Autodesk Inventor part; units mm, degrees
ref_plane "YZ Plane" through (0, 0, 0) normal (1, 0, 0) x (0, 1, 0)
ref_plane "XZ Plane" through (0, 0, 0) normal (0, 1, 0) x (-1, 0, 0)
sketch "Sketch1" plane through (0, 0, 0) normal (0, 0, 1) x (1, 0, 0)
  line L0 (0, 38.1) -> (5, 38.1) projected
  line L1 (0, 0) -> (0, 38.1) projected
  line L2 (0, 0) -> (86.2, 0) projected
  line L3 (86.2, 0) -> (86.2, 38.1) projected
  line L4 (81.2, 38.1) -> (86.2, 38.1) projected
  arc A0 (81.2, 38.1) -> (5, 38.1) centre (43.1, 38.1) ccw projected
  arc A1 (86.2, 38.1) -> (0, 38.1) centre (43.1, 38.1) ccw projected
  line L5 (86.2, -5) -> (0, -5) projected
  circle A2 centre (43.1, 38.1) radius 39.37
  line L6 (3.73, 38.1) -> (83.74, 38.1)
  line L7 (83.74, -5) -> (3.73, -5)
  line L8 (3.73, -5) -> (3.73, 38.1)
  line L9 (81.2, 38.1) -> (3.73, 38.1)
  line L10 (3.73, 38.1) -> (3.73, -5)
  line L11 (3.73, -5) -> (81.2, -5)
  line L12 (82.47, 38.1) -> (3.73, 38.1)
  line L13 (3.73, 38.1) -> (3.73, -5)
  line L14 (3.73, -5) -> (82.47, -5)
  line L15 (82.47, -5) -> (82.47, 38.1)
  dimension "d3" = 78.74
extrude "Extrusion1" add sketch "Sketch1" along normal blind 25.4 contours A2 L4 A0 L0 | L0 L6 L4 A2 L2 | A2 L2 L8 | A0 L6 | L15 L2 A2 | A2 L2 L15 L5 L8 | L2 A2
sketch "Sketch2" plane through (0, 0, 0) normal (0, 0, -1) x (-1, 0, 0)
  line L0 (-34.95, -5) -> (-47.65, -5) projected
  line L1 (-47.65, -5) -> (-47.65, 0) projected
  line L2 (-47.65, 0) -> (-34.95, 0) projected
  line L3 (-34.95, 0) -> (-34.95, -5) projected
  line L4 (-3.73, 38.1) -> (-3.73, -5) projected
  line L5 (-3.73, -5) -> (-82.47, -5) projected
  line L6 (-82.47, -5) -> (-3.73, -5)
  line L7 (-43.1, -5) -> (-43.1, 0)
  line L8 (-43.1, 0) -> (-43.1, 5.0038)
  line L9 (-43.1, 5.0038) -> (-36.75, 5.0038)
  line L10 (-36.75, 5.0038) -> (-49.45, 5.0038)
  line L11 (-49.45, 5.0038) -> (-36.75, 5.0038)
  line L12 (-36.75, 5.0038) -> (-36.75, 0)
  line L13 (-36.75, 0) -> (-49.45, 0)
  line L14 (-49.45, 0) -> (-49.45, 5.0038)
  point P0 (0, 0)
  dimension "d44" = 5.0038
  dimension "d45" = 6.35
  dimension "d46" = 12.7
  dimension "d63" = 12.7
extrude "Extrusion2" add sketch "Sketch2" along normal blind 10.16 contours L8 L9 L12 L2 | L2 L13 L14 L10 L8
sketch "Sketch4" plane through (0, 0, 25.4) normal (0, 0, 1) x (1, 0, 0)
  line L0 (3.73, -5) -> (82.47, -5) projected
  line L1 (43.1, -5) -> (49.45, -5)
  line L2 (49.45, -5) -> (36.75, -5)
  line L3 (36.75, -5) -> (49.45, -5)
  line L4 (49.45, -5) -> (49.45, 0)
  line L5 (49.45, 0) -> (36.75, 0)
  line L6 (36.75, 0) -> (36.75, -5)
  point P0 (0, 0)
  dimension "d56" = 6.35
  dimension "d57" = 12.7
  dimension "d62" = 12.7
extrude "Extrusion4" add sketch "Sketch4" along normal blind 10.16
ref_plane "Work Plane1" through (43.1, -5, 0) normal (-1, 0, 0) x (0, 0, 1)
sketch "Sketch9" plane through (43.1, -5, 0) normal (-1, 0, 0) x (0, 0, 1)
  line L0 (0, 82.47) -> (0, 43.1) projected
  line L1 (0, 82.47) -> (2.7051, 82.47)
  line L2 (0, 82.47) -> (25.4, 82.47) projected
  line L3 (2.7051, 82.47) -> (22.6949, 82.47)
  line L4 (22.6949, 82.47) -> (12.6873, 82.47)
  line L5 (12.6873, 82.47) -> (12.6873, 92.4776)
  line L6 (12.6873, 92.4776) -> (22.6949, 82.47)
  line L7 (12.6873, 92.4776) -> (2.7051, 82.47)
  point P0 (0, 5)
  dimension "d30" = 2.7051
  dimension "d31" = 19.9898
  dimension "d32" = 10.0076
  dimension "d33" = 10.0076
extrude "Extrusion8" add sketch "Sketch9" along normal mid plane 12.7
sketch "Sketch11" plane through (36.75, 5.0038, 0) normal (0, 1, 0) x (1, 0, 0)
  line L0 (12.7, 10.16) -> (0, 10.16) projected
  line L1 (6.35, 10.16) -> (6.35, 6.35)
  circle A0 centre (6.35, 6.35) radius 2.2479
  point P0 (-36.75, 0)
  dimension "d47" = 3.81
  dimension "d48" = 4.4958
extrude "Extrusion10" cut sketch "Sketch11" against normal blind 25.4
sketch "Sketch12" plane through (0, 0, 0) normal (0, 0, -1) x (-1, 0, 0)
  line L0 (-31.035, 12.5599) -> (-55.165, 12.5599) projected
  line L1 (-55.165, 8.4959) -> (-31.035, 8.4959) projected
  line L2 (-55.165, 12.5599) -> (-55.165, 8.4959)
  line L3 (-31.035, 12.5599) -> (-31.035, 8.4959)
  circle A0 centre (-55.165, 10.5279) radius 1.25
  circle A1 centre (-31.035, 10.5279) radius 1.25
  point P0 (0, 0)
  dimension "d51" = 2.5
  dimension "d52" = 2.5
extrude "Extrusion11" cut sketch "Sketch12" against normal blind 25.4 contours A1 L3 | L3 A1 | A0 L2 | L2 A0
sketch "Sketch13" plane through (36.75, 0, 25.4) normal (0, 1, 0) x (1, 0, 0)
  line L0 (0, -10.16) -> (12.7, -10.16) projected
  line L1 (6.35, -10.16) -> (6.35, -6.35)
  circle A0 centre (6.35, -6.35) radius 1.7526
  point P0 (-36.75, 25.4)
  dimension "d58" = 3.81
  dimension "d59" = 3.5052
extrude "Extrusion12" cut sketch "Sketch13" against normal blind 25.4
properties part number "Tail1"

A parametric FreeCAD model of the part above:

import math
import FreeCAD as App
import Part
import Sketcher
from FreeCAD import Vector
Q = App.Units.Quantity

doc = App.newDocument("Part")
body = doc.addObject("PartDesign::Body", "Body")
body.AllowCompound = True

# Sketch on XY plane
sketch1 = body.newObject("Sketcher::SketchObject", "Sketch")
sketch1.AttachmentSupport = (doc.getObject("XY_Plane"), [""])
sketch1.MapMode = "FlatFace"
sketch1.addGeometry([
    Part.ArcOfCircle(Part.Circle(Vector(43, 38, 0), Vector(0, 0, 1), 39), math.radians(0), math.radians(180)),
    Part.LineSegment(Vector(4, 38, 0), Vector(4, -5, 0)),
    Part.LineSegment(Vector(4, -5, 0), Vector(82, -5, 0)),
    Part.LineSegment(Vector(82, -5, 0), Vector(82, 38, 0)),
], False)
sketch1.addConstraint([
    Sketcher.Constraint("Tangent", 0, 2, 1, 1),
    Sketcher.Constraint("Coincident", 1, 2, 2, 1),
    Sketcher.Constraint("Coincident", 2, 2, 3, 1),
    Sketcher.Constraint("Tangent", 3, 2, 0, 1),
    Sketcher.Constraint("Vertical", 1),
    Sketcher.Constraint("Horizontal", 2),
    Sketcher.Constraint("Vertical", 3),
    Sketcher.Constraint("Radius", 0, Q("1.55 in")),
    Sketcher.Constraint("DistanceY", -1, 1, 0, 3, Q("1.5 in")),
    Sketcher.Constraint("DistanceY", 1, 2, 1, 1, Q("43.1 mm")),
    Sketcher.Constraint("DistanceX", -1, 1, 0, 3, Q("43.1 mm")),
])
pad1 = body.newObject("PartDesign::Pad", "Pad")
pad1.Profile = sketch1
pad1.Length = Q("1 in")

# Sketch on XY plane
sketch2 = body.newObject("Sketcher::SketchObject", "Sketch001")
sketch2.AttachmentSupport = (doc.getObject("XY_Plane"), [""])
sketch2.MapMode = "FlatFace"
sketch2.addGeometry([
    Part.LineSegment(Vector(37, 5, 0), Vector(49, 5, 0)),
    Part.LineSegment(Vector(49, 5, 0), Vector(49, 0, 0)),
    Part.LineSegment(Vector(49, 0, 0), Vector(37, 0, 0)),
    Part.LineSegment(Vector(37, 0, 0), Vector(37, 5, 0)),
], False)
sketch2.addConstraint([
    Sketcher.Constraint("Coincident", 0, 2, 1, 1),
    Sketcher.Constraint("Coincident", 1, 2, 2, 1),
    Sketcher.Constraint("Coincident", 2, 2, 3, 1),
    Sketcher.Constraint("Coincident", 3, 2, 0, 1),
    Sketcher.Constraint("Horizontal", 0),
    Sketcher.Constraint("Vertical", 1),
    Sketcher.Constraint("Horizontal", 2),
    Sketcher.Constraint("Vertical", 3),
    Sketcher.Constraint("PointOnObject", 1, 2, -1),
    Sketcher.Constraint("DistanceX", 0, 1, 0, 2, Q("0.5 in")),
    Sketcher.Constraint("DistanceY", 1, 2, 1, 1, Q("0.197 in")),
    Sketcher.Constraint("DistanceX", -1, 1, 0, 2, Q("49.45 mm")),
])
pad2 = body.newObject("PartDesign::Pad", "Pad001")
pad2.Profile = sketch2
pad2.Length = Q("0.4 in")
pad2.Reversed = True

# Sketch on XY plane
sketch3 = body.newObject("Sketcher::SketchObject", "Sketch002")
sketch3.AttachmentSupport = (doc.getObject("XY_Plane"), [""])
sketch3.MapMode = "FlatFace"
sketch3.AttachmentOffset = App.Placement(Vector(0, 0, 1 * 25.4), App.Rotation())
sketch3.addGeometry([
    Part.LineSegment(Vector(37, 0, 0), Vector(37, -5, 0)),
    Part.LineSegment(Vector(37, -5, 0), Vector(49, -5, 0)),
    Part.LineSegment(Vector(49, -5, 0), Vector(49, 0, 0)),
    Part.LineSegment(Vector(49, 0, 0), Vector(37, 0, 0)),
], False)
sketch3.addConstraint([
    Sketcher.Constraint("Coincident", 0, 2, 1, 1),
    Sketcher.Constraint("Coincident", 1, 2, 2, 1),
    Sketcher.Constraint("Coincident", 2, 2, 3, 1),
    Sketcher.Constraint("Coincident", 3, 2, 0, 1),
    Sketcher.Constraint("Vertical", 0),
    Sketcher.Constraint("Horizontal", 1),
    Sketcher.Constraint("Vertical", 2),
    Sketcher.Constraint("Horizontal", 3),
    Sketcher.Constraint("PointOnObject", 2, 2, -1),
    Sketcher.Constraint("DistanceX", 1, 1, 1, 2, Q("0.5 in")),
    Sketcher.Constraint("DistanceY", 0, 2, 0, 1, Q("5 mm")),
    Sketcher.Constraint("DistanceX", -1, 1, 0, 2, Q("36.75 mm")),
])
pad3 = body.newObject("PartDesign::Pad", "Pad002")
pad3.Profile = sketch3
pad3.Length = Q("0.4 in")

# Sketch on YZ plane
sketch4 = body.newObject("Sketcher::SketchObject", "Sketch003")
sketch4.AttachmentSupport = (doc.getObject("YZ_Plane"), [""])
sketch4.MapMode = "FlatFace"
sketch4.AttachmentOffset = App.Placement(Vector(0, 0, 43.1), App.Rotation())
sketch4.addGeometry([
    Part.LineSegment(Vector(87, 13, 0), Vector(77, 3, 0)),
    Part.LineSegment(Vector(77, 3, 0), Vector(77, 23, 0)),
    Part.LineSegment(Vector(77, 23, 0), Vector(87, 13, 0)),
], False)
sketch4.addConstraint([
    Sketcher.Constraint("Coincident", 0, 2, 1, 1),
    Sketcher.Constraint("Coincident", 1, 2, 2, 1),
    Sketcher.Constraint("Coincident", 2, 2, 0, 1),
    Sketcher.Constraint("Vertical", 1),
    Sketcher.Constraint("DistanceY", 1, 1, 1, 2, Q("0.787 in")),
    Sketcher.Constraint("Angle", 2, Q("-45 deg")),
    Sketcher.Constraint("DistanceX", 0, 2, 2, 2, Q("0.394 in")),
    Sketcher.Constraint("DistanceY", -1, 1, 0, 2, Q("0.1065 in")),
    Sketcher.Constraint("DistanceX", -1, 1, 0, 2, Q("3.05 in")),
])
pad4 = body.newObject("PartDesign::Pad", "Pad003")
pad4.Profile = sketch4
pad4.Length = Q("0.5 in")
pad4.Midplane = True

# Sketch on XZ plane
sketch5 = body.newObject("Sketcher::SketchObject", "Sketch004")
sketch5.AttachmentSupport = (doc.getObject("XZ_Plane"), [""])
sketch5.MapMode = "FlatFace"
sketch5.AttachmentOffset = App.Placement(Vector(0, 0, -0.197 * 25.4), App.Rotation())
sketch5.addGeometry(Part.Circle(Vector(43.1, -6.3, 0), Vector(0, 0, 1), 2.2), False)
sketch5.addConstraint([
    Sketcher.Constraint("Diameter", 0, Q("0.177 in")),
    Sketcher.Constraint("DistanceY", 0, 3, -1, 1, Q("0.25 in")),
    Sketcher.Constraint("DistanceX", -1, 1, 0, 3, Q("43.1 mm")),
])
pocket1 = body.newObject("PartDesign::Pocket", "Pocket")
pocket1.Profile = sketch5
pocket1.Length = Q("1 in")
pocket1.Reversed = True

# Sketch on XY plane
sketch6 = body.newObject("Sketcher::SketchObject", "Sketch005")
sketch6.AttachmentSupport = (doc.getObject("XY_Plane"), [""])
sketch6.MapMode = "FlatFace"
sketch6.addGeometry([
    Part.Circle(Vector(31, 10.5, 0), Vector(0, 0, 1), 1.2),
    Part.Circle(Vector(55.2, 10.5, 0), Vector(0, 0, 1), 1.2),
], False)
sketch6.addConstraint([
    Sketcher.Constraint("Equal", 0, 1),
    Sketcher.Constraint("Horizontal", 0, 3, 1, 3),
    Sketcher.Constraint("Diameter", 0, Q("2.5 mm")),
    Sketcher.Constraint("DistanceX", 0, 3, 1, 3, Q("0.95 in")),
    Sketcher.Constraint("DistanceX", -1, 1, 0, 3, Q("31.035 mm")),
    Sketcher.Constraint("DistanceY", -1, 1, 0, 3, Q("0.4144882 in")),
])
pocket2 = body.newObject("PartDesign::Pocket", "Pocket001")
pocket2.Profile = sketch6
pocket2.Length = Q("1 in")
pocket2.Reversed = True

# Sketch on XZ plane
sketch7 = body.newObject("Sketcher::SketchObject", "Sketch006")
sketch7.AttachmentSupport = (doc.getObject("XZ_Plane"), [""])
sketch7.MapMode = "FlatFace"
sketch7.addGeometry(Part.Circle(Vector(43.1, 31.8, 0), Vector(0, 0, 1), 1.8), False)
sketch7.addConstraint([
    Sketcher.Constraint("Diameter", 0, Q("0.138 in")),
    Sketcher.Constraint("DistanceY", -1, 1, 0, 3, Q("1.25 in")),
    Sketcher.Constraint("DistanceX", -1, 1, 0, 3, Q("43.1 mm")),
])
pocket3 = body.newObject("PartDesign::Pocket", "Pocket002")
pocket3.Profile = sketch7
pocket3.Length = Q("1 in")
pocket3.Reversed = True

doc.recompute()
